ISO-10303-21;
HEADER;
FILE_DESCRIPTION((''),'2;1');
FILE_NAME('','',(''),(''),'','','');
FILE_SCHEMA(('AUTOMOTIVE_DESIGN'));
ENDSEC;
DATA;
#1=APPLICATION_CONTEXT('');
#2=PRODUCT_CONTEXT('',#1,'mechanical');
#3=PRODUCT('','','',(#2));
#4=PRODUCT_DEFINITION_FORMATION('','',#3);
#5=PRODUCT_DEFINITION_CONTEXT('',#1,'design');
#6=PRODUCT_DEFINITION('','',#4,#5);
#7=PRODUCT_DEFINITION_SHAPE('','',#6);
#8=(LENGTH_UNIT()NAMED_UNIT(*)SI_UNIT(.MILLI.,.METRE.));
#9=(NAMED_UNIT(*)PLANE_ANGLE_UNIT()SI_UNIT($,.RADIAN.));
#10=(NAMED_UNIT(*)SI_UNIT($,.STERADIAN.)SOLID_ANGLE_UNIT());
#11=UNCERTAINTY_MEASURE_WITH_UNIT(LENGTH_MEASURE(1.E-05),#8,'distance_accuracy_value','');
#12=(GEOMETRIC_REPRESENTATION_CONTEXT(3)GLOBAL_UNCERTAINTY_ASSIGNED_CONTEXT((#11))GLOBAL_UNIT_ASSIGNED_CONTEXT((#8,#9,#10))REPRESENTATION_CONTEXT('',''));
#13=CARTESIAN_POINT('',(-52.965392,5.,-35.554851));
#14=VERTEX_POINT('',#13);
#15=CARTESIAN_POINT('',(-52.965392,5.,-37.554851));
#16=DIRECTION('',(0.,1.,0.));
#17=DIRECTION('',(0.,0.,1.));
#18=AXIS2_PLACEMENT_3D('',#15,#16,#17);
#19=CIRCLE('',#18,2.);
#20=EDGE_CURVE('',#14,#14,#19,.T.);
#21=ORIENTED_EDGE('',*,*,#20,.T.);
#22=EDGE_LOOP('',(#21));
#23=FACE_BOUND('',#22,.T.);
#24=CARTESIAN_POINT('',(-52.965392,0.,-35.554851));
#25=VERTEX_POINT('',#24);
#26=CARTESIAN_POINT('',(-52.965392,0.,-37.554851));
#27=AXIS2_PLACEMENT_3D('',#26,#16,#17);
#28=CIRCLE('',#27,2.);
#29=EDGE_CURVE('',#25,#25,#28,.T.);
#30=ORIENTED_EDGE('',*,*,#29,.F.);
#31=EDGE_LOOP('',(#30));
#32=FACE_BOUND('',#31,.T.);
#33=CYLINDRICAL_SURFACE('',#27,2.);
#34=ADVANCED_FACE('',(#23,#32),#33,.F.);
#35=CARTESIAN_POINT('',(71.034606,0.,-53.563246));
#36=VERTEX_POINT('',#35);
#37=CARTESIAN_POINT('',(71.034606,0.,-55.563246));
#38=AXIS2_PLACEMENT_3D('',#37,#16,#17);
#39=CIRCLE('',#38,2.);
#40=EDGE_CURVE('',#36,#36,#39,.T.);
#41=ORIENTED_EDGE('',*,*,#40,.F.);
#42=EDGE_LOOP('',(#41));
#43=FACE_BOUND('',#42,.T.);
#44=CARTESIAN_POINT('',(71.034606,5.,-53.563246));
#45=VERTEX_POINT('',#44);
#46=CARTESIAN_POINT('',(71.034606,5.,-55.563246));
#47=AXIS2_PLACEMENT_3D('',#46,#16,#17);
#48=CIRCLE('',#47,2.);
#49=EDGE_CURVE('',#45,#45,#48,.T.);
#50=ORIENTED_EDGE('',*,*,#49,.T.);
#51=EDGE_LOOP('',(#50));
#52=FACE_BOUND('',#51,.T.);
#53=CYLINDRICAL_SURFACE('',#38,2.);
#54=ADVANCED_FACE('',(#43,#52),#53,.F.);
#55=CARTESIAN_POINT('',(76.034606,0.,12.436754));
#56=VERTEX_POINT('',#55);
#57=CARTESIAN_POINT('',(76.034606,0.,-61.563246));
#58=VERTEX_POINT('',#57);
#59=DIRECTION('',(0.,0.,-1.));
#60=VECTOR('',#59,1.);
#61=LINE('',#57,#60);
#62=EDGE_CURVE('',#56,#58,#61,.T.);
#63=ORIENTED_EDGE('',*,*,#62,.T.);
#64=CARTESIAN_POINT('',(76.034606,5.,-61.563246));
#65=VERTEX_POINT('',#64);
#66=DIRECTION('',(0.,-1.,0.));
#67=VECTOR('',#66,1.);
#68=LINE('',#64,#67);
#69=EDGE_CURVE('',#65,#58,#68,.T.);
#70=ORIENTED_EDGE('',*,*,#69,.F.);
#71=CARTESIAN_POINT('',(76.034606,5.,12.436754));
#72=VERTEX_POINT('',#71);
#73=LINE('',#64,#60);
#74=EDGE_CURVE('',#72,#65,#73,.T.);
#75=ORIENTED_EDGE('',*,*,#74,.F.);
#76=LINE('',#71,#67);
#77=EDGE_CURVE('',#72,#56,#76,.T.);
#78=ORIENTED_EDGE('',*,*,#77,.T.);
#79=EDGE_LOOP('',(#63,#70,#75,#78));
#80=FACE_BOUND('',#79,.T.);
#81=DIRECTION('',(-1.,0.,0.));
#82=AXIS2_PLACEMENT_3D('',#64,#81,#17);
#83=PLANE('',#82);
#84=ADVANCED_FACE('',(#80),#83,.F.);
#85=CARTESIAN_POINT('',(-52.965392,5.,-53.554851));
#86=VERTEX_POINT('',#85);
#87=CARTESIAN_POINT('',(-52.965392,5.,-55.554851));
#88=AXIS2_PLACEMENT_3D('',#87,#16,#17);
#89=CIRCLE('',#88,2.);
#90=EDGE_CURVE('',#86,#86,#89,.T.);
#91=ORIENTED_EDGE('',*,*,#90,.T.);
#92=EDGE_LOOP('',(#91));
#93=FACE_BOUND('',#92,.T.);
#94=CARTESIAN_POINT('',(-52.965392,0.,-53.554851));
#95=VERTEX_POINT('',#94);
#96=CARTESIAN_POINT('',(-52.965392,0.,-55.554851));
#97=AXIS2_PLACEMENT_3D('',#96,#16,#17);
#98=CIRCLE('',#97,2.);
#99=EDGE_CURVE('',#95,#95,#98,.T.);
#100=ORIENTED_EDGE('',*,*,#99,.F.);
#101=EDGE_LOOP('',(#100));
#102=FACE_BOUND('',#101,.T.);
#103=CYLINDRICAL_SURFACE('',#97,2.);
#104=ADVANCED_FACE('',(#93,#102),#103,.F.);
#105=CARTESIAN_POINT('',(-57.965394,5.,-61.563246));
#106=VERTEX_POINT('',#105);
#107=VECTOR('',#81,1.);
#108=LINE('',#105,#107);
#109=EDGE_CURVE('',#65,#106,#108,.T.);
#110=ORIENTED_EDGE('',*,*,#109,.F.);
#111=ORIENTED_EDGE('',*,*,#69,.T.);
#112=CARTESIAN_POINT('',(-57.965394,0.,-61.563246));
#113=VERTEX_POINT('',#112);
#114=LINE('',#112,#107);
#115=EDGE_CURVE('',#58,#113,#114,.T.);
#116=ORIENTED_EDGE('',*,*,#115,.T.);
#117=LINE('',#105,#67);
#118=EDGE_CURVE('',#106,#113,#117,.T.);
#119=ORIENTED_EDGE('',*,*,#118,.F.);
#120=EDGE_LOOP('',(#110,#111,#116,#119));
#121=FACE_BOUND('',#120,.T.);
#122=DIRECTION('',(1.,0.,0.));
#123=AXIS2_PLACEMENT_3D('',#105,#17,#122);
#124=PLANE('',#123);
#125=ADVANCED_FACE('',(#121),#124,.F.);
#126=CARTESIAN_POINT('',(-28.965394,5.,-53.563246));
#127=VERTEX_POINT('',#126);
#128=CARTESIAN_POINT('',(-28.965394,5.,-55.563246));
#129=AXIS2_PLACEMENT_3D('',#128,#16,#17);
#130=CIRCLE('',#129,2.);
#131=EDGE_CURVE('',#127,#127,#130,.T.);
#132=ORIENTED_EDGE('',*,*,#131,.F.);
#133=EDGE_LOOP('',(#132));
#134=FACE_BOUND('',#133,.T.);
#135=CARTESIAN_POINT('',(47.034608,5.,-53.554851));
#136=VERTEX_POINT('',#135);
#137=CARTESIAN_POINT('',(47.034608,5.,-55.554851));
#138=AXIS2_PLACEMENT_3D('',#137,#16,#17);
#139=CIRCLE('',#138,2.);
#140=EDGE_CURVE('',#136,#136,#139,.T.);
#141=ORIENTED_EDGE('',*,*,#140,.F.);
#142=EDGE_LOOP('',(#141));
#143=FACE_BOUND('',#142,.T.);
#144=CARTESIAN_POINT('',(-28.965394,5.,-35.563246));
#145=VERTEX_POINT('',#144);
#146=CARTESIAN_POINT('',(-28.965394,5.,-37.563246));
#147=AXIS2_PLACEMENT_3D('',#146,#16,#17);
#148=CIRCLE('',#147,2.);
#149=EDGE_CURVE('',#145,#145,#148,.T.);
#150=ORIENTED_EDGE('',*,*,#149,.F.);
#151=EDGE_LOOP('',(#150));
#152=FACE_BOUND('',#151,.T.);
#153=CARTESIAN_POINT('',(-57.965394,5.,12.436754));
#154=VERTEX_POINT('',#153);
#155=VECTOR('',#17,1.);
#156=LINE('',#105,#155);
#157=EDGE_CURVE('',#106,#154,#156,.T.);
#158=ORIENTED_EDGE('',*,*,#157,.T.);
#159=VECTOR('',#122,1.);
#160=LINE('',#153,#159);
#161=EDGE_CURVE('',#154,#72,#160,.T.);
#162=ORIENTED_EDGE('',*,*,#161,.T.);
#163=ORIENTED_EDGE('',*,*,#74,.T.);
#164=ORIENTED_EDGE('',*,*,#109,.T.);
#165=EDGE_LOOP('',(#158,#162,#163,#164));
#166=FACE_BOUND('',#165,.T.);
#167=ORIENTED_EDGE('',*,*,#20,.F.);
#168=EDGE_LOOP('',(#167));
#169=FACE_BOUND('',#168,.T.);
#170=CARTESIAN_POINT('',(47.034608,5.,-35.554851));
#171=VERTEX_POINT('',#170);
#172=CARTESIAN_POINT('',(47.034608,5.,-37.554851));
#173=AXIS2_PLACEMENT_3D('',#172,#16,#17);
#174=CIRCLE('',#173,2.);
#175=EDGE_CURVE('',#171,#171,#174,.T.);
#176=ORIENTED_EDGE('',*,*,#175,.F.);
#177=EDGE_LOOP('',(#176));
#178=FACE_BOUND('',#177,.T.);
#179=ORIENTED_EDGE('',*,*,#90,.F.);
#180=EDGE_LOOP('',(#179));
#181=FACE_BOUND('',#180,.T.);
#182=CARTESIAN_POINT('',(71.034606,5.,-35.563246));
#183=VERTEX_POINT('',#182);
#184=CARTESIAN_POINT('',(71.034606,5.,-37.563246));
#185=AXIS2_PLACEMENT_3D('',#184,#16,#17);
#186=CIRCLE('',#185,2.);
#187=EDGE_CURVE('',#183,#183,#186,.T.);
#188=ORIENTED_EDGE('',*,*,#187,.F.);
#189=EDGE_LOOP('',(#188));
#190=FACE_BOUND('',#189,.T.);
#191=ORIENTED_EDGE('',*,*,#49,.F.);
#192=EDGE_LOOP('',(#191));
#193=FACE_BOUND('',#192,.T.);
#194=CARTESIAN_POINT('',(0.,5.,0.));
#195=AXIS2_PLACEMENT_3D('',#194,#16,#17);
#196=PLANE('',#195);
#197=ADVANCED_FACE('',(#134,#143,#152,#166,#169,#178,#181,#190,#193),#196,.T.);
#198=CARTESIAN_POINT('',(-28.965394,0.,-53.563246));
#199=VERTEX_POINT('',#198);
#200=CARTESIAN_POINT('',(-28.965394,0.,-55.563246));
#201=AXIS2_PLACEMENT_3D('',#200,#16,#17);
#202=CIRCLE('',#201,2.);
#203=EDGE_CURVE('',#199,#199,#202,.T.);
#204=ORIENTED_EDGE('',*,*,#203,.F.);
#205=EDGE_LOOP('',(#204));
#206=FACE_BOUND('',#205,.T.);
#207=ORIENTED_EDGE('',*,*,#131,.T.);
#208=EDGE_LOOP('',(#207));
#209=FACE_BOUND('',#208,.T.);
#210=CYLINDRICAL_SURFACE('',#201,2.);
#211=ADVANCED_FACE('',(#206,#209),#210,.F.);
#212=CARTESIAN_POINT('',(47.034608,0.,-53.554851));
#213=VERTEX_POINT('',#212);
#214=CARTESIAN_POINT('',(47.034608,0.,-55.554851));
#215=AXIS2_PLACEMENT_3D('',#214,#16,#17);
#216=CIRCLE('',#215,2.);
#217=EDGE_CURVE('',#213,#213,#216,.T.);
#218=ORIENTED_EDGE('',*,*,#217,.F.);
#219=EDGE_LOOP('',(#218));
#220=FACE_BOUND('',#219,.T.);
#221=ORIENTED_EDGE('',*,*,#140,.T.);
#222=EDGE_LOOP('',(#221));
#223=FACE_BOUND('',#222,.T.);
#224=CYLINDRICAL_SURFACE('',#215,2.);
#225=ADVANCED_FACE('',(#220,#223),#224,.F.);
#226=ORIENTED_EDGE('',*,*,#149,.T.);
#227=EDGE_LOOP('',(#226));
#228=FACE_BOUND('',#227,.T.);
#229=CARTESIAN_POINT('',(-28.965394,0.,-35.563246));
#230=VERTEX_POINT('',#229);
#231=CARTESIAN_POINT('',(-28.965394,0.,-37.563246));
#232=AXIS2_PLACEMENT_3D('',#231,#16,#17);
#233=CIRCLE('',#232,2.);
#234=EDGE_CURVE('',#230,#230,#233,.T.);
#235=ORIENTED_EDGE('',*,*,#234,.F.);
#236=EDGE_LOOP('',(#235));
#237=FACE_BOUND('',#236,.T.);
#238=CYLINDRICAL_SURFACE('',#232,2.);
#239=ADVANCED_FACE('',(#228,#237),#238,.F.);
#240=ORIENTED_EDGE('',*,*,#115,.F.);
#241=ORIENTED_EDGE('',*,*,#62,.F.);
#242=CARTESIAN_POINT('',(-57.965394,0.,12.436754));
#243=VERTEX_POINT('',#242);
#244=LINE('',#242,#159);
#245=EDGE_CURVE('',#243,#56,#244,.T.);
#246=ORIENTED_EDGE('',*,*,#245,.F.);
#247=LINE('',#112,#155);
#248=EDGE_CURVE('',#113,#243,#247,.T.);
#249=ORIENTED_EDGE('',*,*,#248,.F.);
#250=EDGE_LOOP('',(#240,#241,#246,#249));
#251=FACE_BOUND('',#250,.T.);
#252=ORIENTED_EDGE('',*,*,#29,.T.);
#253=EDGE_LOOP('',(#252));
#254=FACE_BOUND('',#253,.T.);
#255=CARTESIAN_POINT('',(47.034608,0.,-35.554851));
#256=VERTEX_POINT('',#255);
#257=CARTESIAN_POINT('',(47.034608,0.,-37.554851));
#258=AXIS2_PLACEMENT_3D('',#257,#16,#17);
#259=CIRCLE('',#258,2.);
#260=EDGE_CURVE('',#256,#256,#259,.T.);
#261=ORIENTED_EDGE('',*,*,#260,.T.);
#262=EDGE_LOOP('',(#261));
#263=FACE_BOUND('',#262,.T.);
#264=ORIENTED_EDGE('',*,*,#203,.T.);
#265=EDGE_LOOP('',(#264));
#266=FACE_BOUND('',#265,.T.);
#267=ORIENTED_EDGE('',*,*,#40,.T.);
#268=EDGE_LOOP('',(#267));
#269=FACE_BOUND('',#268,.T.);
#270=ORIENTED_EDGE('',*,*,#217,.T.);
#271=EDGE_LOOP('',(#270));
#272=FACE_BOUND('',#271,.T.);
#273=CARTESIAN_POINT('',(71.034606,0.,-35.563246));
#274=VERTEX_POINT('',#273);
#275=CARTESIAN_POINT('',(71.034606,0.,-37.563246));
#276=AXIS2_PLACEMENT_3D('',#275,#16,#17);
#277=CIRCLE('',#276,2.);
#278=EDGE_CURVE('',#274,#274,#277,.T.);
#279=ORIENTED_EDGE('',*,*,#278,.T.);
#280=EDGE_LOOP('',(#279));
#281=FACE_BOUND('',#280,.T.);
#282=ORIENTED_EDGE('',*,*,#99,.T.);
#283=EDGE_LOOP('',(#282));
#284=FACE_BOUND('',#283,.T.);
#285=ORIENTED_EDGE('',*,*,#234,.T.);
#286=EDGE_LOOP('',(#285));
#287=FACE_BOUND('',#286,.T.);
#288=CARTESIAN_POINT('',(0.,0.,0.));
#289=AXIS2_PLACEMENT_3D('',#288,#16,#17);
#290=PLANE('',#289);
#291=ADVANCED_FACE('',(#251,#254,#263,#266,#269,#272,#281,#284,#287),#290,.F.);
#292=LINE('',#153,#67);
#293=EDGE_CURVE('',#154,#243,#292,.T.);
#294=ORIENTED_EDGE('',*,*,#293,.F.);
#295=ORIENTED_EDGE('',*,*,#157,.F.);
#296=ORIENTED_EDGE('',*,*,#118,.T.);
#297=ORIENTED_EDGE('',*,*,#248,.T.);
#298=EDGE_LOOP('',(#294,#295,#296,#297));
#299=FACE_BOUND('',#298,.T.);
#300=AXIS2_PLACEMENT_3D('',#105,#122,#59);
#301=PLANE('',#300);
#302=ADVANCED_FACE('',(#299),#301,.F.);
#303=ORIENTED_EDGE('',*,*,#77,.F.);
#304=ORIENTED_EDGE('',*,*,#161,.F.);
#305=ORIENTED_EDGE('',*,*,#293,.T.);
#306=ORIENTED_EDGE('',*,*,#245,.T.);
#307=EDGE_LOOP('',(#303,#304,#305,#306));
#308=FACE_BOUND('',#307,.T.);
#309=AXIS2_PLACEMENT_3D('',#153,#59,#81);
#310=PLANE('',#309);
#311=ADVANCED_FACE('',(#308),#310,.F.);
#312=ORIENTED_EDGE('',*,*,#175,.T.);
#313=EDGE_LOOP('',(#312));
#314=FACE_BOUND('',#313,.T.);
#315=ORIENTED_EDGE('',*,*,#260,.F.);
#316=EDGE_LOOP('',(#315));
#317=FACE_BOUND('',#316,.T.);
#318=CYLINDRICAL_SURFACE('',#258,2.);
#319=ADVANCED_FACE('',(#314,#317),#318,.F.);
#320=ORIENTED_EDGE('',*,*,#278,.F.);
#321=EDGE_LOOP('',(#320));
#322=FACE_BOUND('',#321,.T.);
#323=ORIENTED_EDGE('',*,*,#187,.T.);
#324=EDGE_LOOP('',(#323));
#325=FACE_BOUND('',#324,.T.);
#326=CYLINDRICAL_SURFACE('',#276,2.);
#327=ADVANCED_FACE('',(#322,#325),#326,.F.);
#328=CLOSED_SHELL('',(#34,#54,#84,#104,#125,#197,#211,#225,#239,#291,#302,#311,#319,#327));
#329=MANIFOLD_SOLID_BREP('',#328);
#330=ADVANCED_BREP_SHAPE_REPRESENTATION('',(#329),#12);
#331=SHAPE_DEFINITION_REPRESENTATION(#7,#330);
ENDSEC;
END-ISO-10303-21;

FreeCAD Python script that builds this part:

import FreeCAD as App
import Part
import Sketcher

doc = App.newDocument("Part")
params = doc.addObject("Spreadsheet::Sheet", "Params")
for row, (alias, value) in enumerate([
    ("sketch1_width", "134 mm"),
    ("sketch1_height", "74 mm"),
    ("pad1_length", "5 mm"),
    ("sketch2_diameter", "4 mm"),
], start=1):
    params.set(f"A{row}", alias)
    params.set(f"B{row}", "=" + value)
    params.setAlias(f"B{row}", alias)

body = doc.addObject("PartDesign::Body", "Body")

sketch1 = doc.addObject("Sketcher::SketchObject", "Sketch")
body.addObject(sketch1)
sketch1.AttachmentSupport = (doc.XZ_Plane, [""])
sketch1.MapMode = "FlatFace"
sketch1.addGeometry([
    Part.LineSegment(App.Vector(-57.965394, -61.563246, 0), App.Vector(-57.965394, 12.436754, 0)),
    Part.LineSegment(App.Vector(-57.965394, 12.436754, 0), App.Vector(76.034606, 12.436754, 0)),
    Part.LineSegment(App.Vector(76.034606, 12.436754, 0), App.Vector(76.034606, -61.563246, 0)),
    Part.LineSegment(App.Vector(76.034606, -61.563246, 0), App.Vector(-57.965394, -61.563246, 0)),
], False)
sketch1.addConstraint([
    Sketcher.Constraint("Coincident", 0, 2, 1, 1),
    Sketcher.Constraint("Coincident", 1, 2, 2, 1),
    Sketcher.Constraint("Coincident", 2, 2, 3, 1),
    Sketcher.Constraint("Coincident", 3, 2, 0, 1),
    Sketcher.Constraint("Vertical", 0),
    Sketcher.Constraint("Horizontal", 1),
    Sketcher.Constraint("Vertical", 2),
    Sketcher.Constraint("Horizontal", 3),
    Sketcher.Constraint("DistanceX", 1, 1, 1, 2, 134.0),
    Sketcher.Constraint("DistanceY", 0, 1, 0, 2, 74.0),
    Sketcher.Constraint("DistanceX", 0, 2, -1, 1, 57.965394),
    Sketcher.Constraint("DistanceY", -1, 1, 0, 2, 12.436754),
])
sketch1.setExpression("Constraints[8]", "Params.sketch1_width")
sketch1.setExpression("Constraints[9]", "Params.sketch1_height")
pad1 = doc.addObject("PartDesign::Pad", "Pad")
body.addObject(pad1)
pad1.Profile = sketch1
pad1.setExpression("Length", "Params.pad1_length")
pad1.Reversed = True

sketch2 = doc.addObject("Sketcher::SketchObject", "Sketch001")
body.addObject(sketch2)
sketch2.AttachmentSupport = (doc.XZ_Plane, [""])
sketch2.MapMode = "FlatFace"
sketch2.AttachmentOffset = App.Placement(App.Vector(0, 0, -5), App.Rotation())
sketch2.addGeometry([
    Part.Circle(App.Vector(71.034606, -55.563246, 0), App.Vector(0, 0, 1), 2),
    Part.Circle(App.Vector(47.034608, -55.554851, 0), App.Vector(0, 0, 1), 2),
    Part.Circle(App.Vector(71.034606, -37.563246, 0), App.Vector(0, 0, 1), 2),
    Part.Circle(App.Vector(47.034608, -37.554851, 0), App.Vector(0, 0, 1), 2),
    Part.Circle(App.Vector(-28.965394, -37.563246, 0), App.Vector(0, 0, 1), 2),
    Part.Circle(App.Vector(-52.965392, -37.554851, 0), App.Vector(0, 0, 1), 2),
    Part.Circle(App.Vector(-52.965392, -55.554851, 0), App.Vector(0, 0, 1), 2),
    Part.Circle(App.Vector(-28.965394, -55.563246, 0), App.Vector(0, 0, 1), 2),
], False)
sketch2.addConstraint([
    Sketcher.Constraint("Equal", 0, 1),
    Sketcher.Constraint("Equal", 1, 2),
    Sketcher.Constraint("Equal", 2, 3),
    Sketcher.Constraint("Equal", 3, 4),
    Sketcher.Constraint("Equal", 4, 5),
    Sketcher.Constraint("Equal", 5, 6),
    Sketcher.Constraint("Equal", 6, 7),
    Sketcher.Constraint("Horizontal", 2, 3, 4, 3),
    Sketcher.Constraint("Horizontal", 3, 3, 5, 3),
    Sketcher.Constraint("Horizontal", 1, 3, 6, 3),
    Sketcher.Constraint("Horizontal", 0, 3, 7, 3),
    Sketcher.Constraint("Vertical", 0, 3, 2, 3),
    Sketcher.Constraint("Vertical", 1, 3, 3, 3),
    Sketcher.Constraint("Vertical", 5, 3, 6, 3),
    Sketcher.Constraint("Vertical", 4, 3, 7, 3),
    Sketcher.Constraint("Diameter", 0, 4.0),
    Sketcher.Constraint("DistanceX", 1, 3, 0, 3, 23.999999),
    Sketcher.Constraint("DistanceY", 0, 3, 2, 3, 18.0),
    Sketcher.Constraint("DistanceY", 1, 3, 3, 3, 18.0),
    Sketcher.Constraint("DistanceX", 4, 3, 3, 3, 76.000001),
    Sketcher.Constraint("DistanceX", 5, 3, 4, 3, 23.999999),
    Sketcher.Constraint("DistanceY", 1, 3, -1, 1, 55.554851),
    Sketcher.Constraint("DistanceX", -1, 1, 0, 3, 71.034606),
    Sketcher.Constraint("DistanceY", 0, 3, -1, 1, 55.563246),
])
sketch2.setExpression("Constraints[15]", "Params.sketch2_diameter")
pocket1 = doc.addObject("PartDesign::Pocket", "Pocket")
body.addObject(pocket1)
pocket1.Profile = sketch2
pocket1.Type = "ThroughAll"
pocket1.Reversed = True

doc.recompute()
